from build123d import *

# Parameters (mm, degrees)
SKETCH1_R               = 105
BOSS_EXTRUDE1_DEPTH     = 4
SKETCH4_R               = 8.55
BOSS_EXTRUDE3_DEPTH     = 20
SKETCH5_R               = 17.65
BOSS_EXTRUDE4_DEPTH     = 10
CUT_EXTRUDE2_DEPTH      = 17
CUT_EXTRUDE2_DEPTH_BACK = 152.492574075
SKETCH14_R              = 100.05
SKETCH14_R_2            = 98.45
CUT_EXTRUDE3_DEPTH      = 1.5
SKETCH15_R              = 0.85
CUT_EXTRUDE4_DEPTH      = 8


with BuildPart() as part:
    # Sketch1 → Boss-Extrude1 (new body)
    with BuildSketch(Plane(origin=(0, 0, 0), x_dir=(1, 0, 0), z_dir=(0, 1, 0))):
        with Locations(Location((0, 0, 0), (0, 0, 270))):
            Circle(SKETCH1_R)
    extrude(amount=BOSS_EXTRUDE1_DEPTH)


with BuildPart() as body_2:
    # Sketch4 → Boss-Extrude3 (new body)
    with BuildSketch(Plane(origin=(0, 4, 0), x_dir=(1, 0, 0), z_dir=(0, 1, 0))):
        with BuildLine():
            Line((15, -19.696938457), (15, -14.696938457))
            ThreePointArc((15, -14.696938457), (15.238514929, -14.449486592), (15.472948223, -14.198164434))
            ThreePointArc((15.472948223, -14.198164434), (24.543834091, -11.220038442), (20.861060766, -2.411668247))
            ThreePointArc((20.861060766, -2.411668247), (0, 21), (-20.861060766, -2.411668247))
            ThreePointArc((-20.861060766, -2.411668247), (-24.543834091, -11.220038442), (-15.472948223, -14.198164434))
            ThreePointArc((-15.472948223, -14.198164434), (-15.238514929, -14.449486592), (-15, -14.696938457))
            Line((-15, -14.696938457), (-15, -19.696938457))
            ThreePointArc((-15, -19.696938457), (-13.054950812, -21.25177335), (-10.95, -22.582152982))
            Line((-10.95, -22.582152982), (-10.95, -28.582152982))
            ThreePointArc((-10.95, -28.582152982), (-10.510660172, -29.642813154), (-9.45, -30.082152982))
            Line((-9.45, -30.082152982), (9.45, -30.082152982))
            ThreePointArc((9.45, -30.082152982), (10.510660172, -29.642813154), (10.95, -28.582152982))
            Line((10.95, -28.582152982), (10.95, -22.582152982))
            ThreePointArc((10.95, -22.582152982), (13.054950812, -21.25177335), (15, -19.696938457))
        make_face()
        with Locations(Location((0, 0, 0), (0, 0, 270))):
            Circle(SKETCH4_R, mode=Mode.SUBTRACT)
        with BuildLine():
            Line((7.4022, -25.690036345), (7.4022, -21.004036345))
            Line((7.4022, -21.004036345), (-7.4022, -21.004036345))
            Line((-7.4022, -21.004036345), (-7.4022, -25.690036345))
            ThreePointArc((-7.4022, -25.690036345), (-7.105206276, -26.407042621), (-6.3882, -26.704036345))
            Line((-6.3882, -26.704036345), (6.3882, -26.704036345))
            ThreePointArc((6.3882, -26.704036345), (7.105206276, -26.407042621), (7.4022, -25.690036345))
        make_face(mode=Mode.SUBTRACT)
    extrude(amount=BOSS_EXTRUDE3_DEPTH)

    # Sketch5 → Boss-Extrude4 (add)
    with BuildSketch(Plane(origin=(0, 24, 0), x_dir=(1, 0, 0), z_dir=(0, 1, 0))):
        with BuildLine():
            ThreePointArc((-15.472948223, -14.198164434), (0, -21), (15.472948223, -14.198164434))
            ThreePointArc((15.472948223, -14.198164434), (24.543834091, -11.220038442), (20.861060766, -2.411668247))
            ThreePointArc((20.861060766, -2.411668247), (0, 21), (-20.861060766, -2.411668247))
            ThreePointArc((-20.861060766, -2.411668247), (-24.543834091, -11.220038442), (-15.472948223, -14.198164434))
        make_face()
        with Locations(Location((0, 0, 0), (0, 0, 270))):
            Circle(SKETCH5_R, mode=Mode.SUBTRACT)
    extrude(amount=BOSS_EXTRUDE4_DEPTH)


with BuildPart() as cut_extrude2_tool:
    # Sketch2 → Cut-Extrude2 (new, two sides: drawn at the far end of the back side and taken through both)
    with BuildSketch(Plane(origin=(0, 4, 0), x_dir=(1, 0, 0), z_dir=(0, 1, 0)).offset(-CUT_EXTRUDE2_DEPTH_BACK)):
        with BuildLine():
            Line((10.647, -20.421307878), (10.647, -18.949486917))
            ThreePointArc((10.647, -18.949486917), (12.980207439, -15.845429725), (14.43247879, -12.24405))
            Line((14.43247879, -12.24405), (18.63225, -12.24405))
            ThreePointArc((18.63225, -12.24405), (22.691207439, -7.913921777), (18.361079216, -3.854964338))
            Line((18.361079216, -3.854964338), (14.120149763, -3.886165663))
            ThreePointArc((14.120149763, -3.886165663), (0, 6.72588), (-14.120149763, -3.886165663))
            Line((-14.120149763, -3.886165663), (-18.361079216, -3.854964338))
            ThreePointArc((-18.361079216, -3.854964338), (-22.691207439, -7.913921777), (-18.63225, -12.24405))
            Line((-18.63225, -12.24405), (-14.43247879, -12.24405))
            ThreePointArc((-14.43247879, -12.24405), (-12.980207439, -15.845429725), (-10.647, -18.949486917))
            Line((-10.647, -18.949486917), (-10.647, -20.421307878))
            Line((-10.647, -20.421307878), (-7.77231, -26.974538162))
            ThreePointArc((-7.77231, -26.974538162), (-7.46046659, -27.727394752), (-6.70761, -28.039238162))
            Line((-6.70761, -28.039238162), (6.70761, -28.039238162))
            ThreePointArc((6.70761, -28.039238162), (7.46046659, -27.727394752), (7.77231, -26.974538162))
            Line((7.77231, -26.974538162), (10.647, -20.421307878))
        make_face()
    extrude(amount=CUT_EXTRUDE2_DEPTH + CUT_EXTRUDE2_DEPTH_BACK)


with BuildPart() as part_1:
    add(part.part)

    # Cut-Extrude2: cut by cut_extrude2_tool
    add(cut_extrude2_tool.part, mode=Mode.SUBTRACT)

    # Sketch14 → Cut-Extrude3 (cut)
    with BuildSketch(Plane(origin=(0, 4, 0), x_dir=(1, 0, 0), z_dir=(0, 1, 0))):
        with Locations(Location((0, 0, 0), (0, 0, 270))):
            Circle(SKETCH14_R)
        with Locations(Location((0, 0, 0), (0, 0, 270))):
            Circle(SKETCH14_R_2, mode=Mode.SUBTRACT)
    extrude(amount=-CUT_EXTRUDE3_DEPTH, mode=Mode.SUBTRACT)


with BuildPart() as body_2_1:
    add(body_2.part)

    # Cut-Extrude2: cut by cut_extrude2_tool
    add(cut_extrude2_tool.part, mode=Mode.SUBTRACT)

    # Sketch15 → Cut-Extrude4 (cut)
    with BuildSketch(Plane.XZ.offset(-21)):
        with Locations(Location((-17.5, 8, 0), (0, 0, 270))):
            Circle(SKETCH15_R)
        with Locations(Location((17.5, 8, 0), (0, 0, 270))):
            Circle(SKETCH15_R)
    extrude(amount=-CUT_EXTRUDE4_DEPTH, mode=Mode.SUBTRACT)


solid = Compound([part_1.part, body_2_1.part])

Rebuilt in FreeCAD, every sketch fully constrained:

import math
import FreeCAD as App
import Part
import Sketcher

V = App.Vector
Q = App.Units.Quantity

doc = App.newDocument("Part")
params = doc.addObject("Spreadsheet::Sheet", "Params")
for row, (alias, value) in enumerate([
    ("sketch1_diameter", "210 mm"),
    ("pad1_length", "4 mm"),
    ("sketch2_radius", "20.999999 mm"),
    ("sketch2_diameter", "17.1 mm"),
    ("sketch2_radius2", "6.5 mm"),
    ("sketch2_radius3", "22.5 mm"),
    ("sketch2_radius4", "1.5 mm"),
    ("pad2_length", "20 mm"),
    ("sketch3_radius", "21 mm"),
    ("sketch3_diameter", "35.3 mm"),
    ("sketch3_radius2", "6.5 mm"),
    ("pad3_length", "10 mm"),
    ("sketch4_radius", "14.7 mm"),
    ("pad4_length", "17 mm"),
    ("pad4_length2", "152.492574 mm"),
    ("sketch5_diameter", "200.1 mm"),
    ("sketch5_diameter2", "196.9 mm"),
    ("pocket1_length", "1.5 mm"),
    ("sketch6_diameter", "1.7 mm"),
    ("pocket2_length", "8 mm"),
], start=1):
    params.set(f"A{row}", alias)
    params.set(f"B{row}", "=" + value)
    params.setAlias(f"B{row}", alias)

body = doc.addObject("PartDesign::Body", "Body")

sketch1 = body.newObject("Sketcher::SketchObject", "Sketch")
sketch1.AttachmentSupport = (doc.getObject("XZ_Plane"), [""])
sketch1.MapMode = "FlatFace"
sketch1.addGeometry(Part.Circle(V(0, 0, 0), V(0, 0, 1), 105), False)
sketch1.addConstraint(Sketcher.Constraint("Coincident", 0, 3, -1, 1))
sketch1.addConstraint(Sketcher.Constraint("Diameter", 0, Q("210 mm")))
sketch1.setExpression("Constraints[1]", "Params.sketch1_diameter")
pad1 = body.newObject("PartDesign::Pad", "Pad")
pad1.Profile = sketch1
pad1.setExpression("Length", "Params.pad1_length")
pad1.Reversed = True
body2 = doc.addObject("PartDesign::Body", "Body001")

sketch2 = body2.newObject("Sketcher::SketchObject", "Sketch001")
sketch2.AttachmentSupport = (doc.getObject("XZ_Plane001"), [""])
sketch2.MapMode = "FlatFace"
sketch2.AttachmentOffset = App.Placement(V(0, 0, -4), App.Rotation())
sketch2.addGeometry(Part.LineSegment(V(15, 19.696938, 0), V(15, 14.696938, 0)), False)
sketch2.addGeometry(Part.ArcOfCircle(Part.Circle(V(0.000001, 0.000001, 0), V(0, 0, 1), 20.999999), math.radians(42.539868), math.radians(44.415309)), False)
sketch2.addGeometry(Part.ArcOfCircle(Part.Circle(V(18.63225, 8.5176, 0), V(0, 0, 1), 6.5), math.radians(-69.946712), math.radians(119.081054)), False)
sketch2.addGeometry(Part.ArcOfCircle(Part.Circle(V(0, 0, 0), V(0, 0, 1), 21), math.radians(173.405526), math.radians(366.594474)), False)
sketch2.addGeometry(Part.ArcOfCircle(Part.Circle(V(-18.63225, 8.5176, 0), V(0, 0, 1), 6.5), math.radians(60.918946), math.radians(249.946712)), False)
sketch2.addGeometry(Part.ArcOfCircle(Part.Circle(V(-0.000001, 0.000001, 0), V(0, 0, 1), 20.999999), math.radians(135.584691), math.radians(137.460132)), False)
sketch2.addGeometry(Part.LineSegment(V(-15, 14.696938, 0), V(-15, 19.696938, 0)), False)
sketch2.addGeometry(Part.ArcOfCircle(Part.Circle(V(0, 2.926429, 0), V(0, 0, 1), 22.5), math.radians(119.121726), math.radians(131.810315)), False)
sketch2.addGeometry(Part.LineSegment(V(-10.95, 22.582153, 0), V(-10.95, 28.582153, 0)), False)
sketch2.addGeometry(Part.ArcOfCircle(Part.Circle(V(-9.45, 28.582153, 0), V(0, 0, 1), 1.5), math.radians(90), math.radians(180)), False)
sketch2.addGeometry(Part.LineSegment(V(-9.45, 30.082153, 0), V(9.45, 30.082153, 0)), False)
sketch2.addGeometry(Part.ArcOfCircle(Part.Circle(V(9.45, 28.582153, 0), V(0, 0, 1), 1.5), math.radians(0), math.radians(90)), False)
sketch2.addGeometry(Part.LineSegment(V(10.95, 28.582153, 0), V(10.95, 22.582153, 0)), False)
sketch2.addGeometry(Part.ArcOfCircle(Part.Circle(V(0, 2.926429, 0), V(0, 0, 1), 22.5), math.radians(48.189685), math.radians(60.878274)), False)
sketch2.addGeometry(Part.LineSegment(V(7.4022, 21.004036, 0), V(7.4022, 25.690036, 0)), False)
sketch2.addGeometry(Part.ArcOfCircle(Part.Circle(V(6.3882, 25.690036, 0), V(0, 0, 1), 1.014), math.radians(0), math.radians(90)), False)
sketch2.addGeometry(Part.LineSegment(V(6.3882, 26.704036, 0), V(-6.3882, 26.704036, 0)), False)
sketch2.addGeometry(Part.ArcOfCircle(Part.Circle(V(-6.3882, 25.690036, 0), V(0, 0, 1), 1.014), math.radians(90), math.radians(180)), False)
sketch2.addGeometry(Part.LineSegment(V(-7.4022, 25.690036, 0), V(-7.4022, 21.004036, 0)), False)
sketch2.addGeometry(Part.LineSegment(V(-7.4022, 21.004036, 0), V(7.4022, 21.004036, 0)), False)
sketch2.addGeometry(Part.Circle(V(0, 0, 0), V(0, 0, 1), 8.55), False)
sketch2.addConstraint(Sketcher.Constraint("Coincident", 0, 2, 1, 2))
sketch2.addConstraint(Sketcher.Constraint("Coincident", 1, 1, 2, 2))
sketch2.addConstraint(Sketcher.Constraint("Coincident", 2, 1, 3, 2))
sketch2.addConstraint(Sketcher.Constraint("Coincident", 3, 1, 4, 2))
sketch2.addConstraint(Sketcher.Constraint("Coincident", 4, 1, 5, 2))
sketch2.addConstraint(Sketcher.Constraint("Coincident", 5, 1, 6, 1))
sketch2.addConstraint(Sketcher.Constraint("Coincident", 6, 2, 7, 2))
sketch2.addConstraint(Sketcher.Constraint("Coincident", 7, 1, 8, 1))
sketch2.addConstraint(Sketcher.Constraint("Tangent", 8, 2, 9, 2))
sketch2.addConstraint(Sketcher.Constraint("Tangent", 9, 1, 10, 1))
sketch2.addConstraint(Sketcher.Constraint("Tangent", 10, 2, 11, 2))
sketch2.addConstraint(Sketcher.Constraint("Tangent", 11, 1, 12, 1))
sketch2.addConstraint(Sketcher.Constraint("Coincident", 12, 2, 13, 2))
sketch2.addConstraint(Sketcher.Constraint("Coincident", 13, 1, 0, 1))
sketch2.addConstraint(Sketcher.Constraint("Tangent", 14, 2, 15, 1))
sketch2.addConstraint(Sketcher.Constraint("Tangent", 15, 2, 16, 1))
sketch2.addConstraint(Sketcher.Constraint("Tangent", 16, 2, 17, 1))
sketch2.addConstraint(Sketcher.Constraint("Tangent", 17, 2, 18, 1))
sketch2.addConstraint(Sketcher.Constraint("Coincident", 18, 2, 19, 1))
sketch2.addConstraint(Sketcher.Constraint("Coincident", 19, 2, 14, 1))
sketch2.addConstraint(Sketcher.Constraint("Vertical", 0))
sketch2.addConstraint(Sketcher.Constraint("Vertical", 6))
sketch2.addConstraint(Sketcher.Constraint("Vertical", 8))
sketch2.addConstraint(Sketcher.Constraint("Horizontal", 10))
sketch2.addConstraint(Sketcher.Constraint("Vertical", 12))
sketch2.addConstraint(Sketcher.Constraint("Vertical", 14))
sketch2.addConstraint(Sketcher.Constraint("Horizontal", 16))
sketch2.addConstraint(Sketcher.Constraint("Vertical", 18))
sketch2.addConstraint(Sketcher.Constraint("Horizontal", 19))
sketch2.addConstraint(Sketcher.Constraint("Coincident", 1, 3, -1, 1))
sketch2.addConstraint(Sketcher.Constraint("Coincident", 3, 3, -1, 1))
sketch2.addConstraint(Sketcher.Constraint("Coincident", 5, 3, -1, 1))
sketch2.addConstraint(Sketcher.Constraint("Coincident", 20, 3, -1, 1))
sketch2.addConstraint(Sketcher.Constraint("Coincident", 13, 3, 7, 3))
sketch2.addConstraint(Sketcher.Constraint("Equal", 1, 3))
sketch2.addConstraint(Sketcher.Constraint("Equal", 2, 4))
sketch2.addConstraint(Sketcher.Constraint("Equal", 3, 5))
sketch2.addConstraint(Sketcher.Constraint("Equal", 9, 11))
sketch2.addConstraint(Sketcher.Constraint("Equal", 7, 13))
sketch2.addConstraint(Sketcher.Constraint("Equal", 15, 17))
sketch2.addConstraint(Sketcher.Constraint("Symmetric", 2, 3, 4, 3, -2))
sketch2.addConstraint(Sketcher.Constraint("Symmetric", 7, 1, 12, 2, -2))
sketch2.addConstraint(Sketcher.Constraint("Horizontal", 0, 2, 5, 1))
sketch2.addConstraint(Sketcher.Constraint("Radius", 1, Q("20.999999 mm")))
sketch2.addConstraint(Sketcher.Constraint("Diameter", 20, Q("17.1 mm")))
sketch2.addConstraint(Sketcher.Constraint("Radius", 2, Q("6.5 mm")))
sketch2.addConstraint(Sketcher.Constraint("Radius", 7, Q("22.5 mm")))
sketch2.addConstraint(Sketcher.Constraint("Radius", 9, Q("1.5 mm")))
sketch2.addConstraint(Sketcher.Constraint("DistanceY", 0, 2, 0, 1, Q("5 mm")))
sketch2.addConstraint(Sketcher.Constraint("DistanceY", 8, 1, 8, 2, Q("6 mm")))
sketch2.addConstraint(Sketcher.Constraint("DistanceX", 10, 1, 10, 2, Q("18.9 mm")))
sketch2.addConstraint(Sketcher.Constraint("DistanceX", -1, 1, 0, 2, Q("15 mm")))
sketch2.addConstraint(Sketcher.Constraint("Radius", 15, Q("1.014 mm")))
sketch2.addConstraint(Sketcher.Constraint("DistanceY", 18, 2, 16, 2, Q("5.7 mm")))
sketch2.addConstraint(Sketcher.Constraint("DistanceX", 16, 2, 16, 1, Q("12.7764 mm")))
sketch2.addConstraint(Sketcher.Constraint("DistanceY", -1, 1, 2, 3, Q("8.5176 mm")))
sketch2.addConstraint(Sketcher.Constraint("DistanceX", -1, 1, 15, 3, Q("6.3882 mm")))
sketch2.addConstraint(Sketcher.Constraint("DistanceX", 4, 3, 2, 3, Q("37.2645 mm")))
sketch2.addConstraint(Sketcher.Constraint("DistanceY", 1, 1, 15, 3, Q("11.491872 mm")))
sketch2.setExpression("Constraints[43]", "Params.sketch2_radius")
sketch2.setExpression("Constraints[44]", "Params.sketch2_diameter")
sketch2.setExpression("Constraints[45]", "Params.sketch2_radius2")
sketch2.setExpression("Constraints[46]", "Params.sketch2_radius3")
sketch2.setExpression("Constraints[47]", "Params.sketch2_radius4")
pad2 = body2.newObject("PartDesign::Pad", "Pad001")
pad2.Profile = sketch2
pad2.setExpression("Length", "Params.pad2_length")
pad2.Reversed = True

sketch3 = body2.newObject("Sketcher::SketchObject", "Sketch002")
sketch3.AttachmentSupport = (doc.getObject("XZ_Plane001"), [""])
sketch3.MapMode = "FlatFace"
sketch3.AttachmentOffset = App.Placement(V(0, 0, -24), App.Rotation())
sketch3.addGeometry(Part.ArcOfCircle(Part.Circle(V(0, 0, 0), V(0, 0, 1), 21), math.radians(42.539868), math.radians(137.460132)), False)
sketch3.addGeometry(Part.ArcOfCircle(Part.Circle(V(18.63225, 8.5176, 0), V(0, 0, 1), 6.5), math.radians(-69.946712), math.radians(119.081054)), False)
sketch3.addGeometry(Part.ArcOfCircle(Part.Circle(V(0, 0, 0), V(0, 0, 1), 21), math.radians(173.405526), math.radians(366.594474)), False)
sketch3.addGeometry(Part.ArcOfCircle(Part.Circle(V(-18.63225, 8.5176, 0), V(0, 0, 1), 6.5), math.radians(60.918946), math.radians(249.946712)), False)
sketch3.addGeometry(Part.Circle(V(0, 0, 0), V(0, 0, 1), 17.65), False)
sketch3.addConstraint(Sketcher.Constraint("Coincident", 0, 1, 1, 2))
sketch3.addConstraint(Sketcher.Constraint("Coincident", 1, 1, 2, 2))
sketch3.addConstraint(Sketcher.Constraint("Coincident", 2, 1, 3, 2))
sketch3.addConstraint(Sketcher.Constraint("Coincident", 3, 1, 0, 2))
sketch3.addConstraint(Sketcher.Constraint("Coincident", 0, 3, -1, 1))
sketch3.addConstraint(Sketcher.Constraint("Coincident", 2, 3, -1, 1))
sketch3.addConstraint(Sketcher.Constraint("Coincident", 4, 3, -1, 1))
sketch3.addConstraint(Sketcher.Constraint("Equal", 0, 2))
sketch3.addConstraint(Sketcher.Constraint("Equal", 1, 3))
sketch3.addConstraint(Sketcher.Constraint("Symmetric", 1, 3, 3, 3, -2))
sketch3.addConstraint(Sketcher.Constraint("Radius", 0, Q("21 mm")))
sketch3.addConstraint(Sketcher.Constraint("Diameter", 4, Q("35.3 mm")))
sketch3.addConstraint(Sketcher.Constraint("Radius", 1, Q("6.5 mm")))
sketch3.addConstraint(Sketcher.Constraint("DistanceY", -1, 1, 1, 3, Q("8.5176 mm")))
sketch3.addConstraint(Sketcher.Constraint("DistanceX", 3, 3, 1, 3, Q("37.2645 mm")))
sketch3.setExpression("Constraints[10]", "Params.sketch3_radius")
sketch3.setExpression("Constraints[11]", "Params.sketch3_diameter")
sketch3.setExpression("Constraints[12]", "Params.sketch3_radius2")
pad3 = body2.newObject("PartDesign::Pad", "Pad002")
pad3.Profile = sketch3
pad3.setExpression("Length", "Params.pad3_length")
pad3.Reversed = True
body3 = doc.addObject("PartDesign::Body", "Body002")

sketch4 = body3.newObject("Sketcher::SketchObject", "Sketch003")
sketch4.AttachmentSupport = (doc.getObject("XZ_Plane002"), [""])
sketch4.MapMode = "FlatFace"
sketch4.AttachmentOffset = App.Placement(V(0, 0, -4), App.Rotation())
sketch4.addGeometry(Part.LineSegment(V(10.647, 20.421308, 0), V(10.647, 18.949487, 0)), False)
sketch4.addGeometry(Part.ArcOfCircle(Part.Circle(V(0, 8.5176, 0), V(0, 0, 1), 14.9058), math.radians(14.477512), math.radians(44.415309)), False)
sketch4.addGeometry(Part.LineSegment(V(14.432479, 12.24405, 0), V(18.63225, 12.24405, 0)), False)
sketch4.addGeometry(Part.ArcOfCircle(Part.Circle(V(18.496665, 8.049507, 0), V(0, 0, 1), 4.196734), math.radians(-91.851398), math.radians(88.148602)), False)
sketch4.addGeometry(Part.LineSegment(V(18.361079, 3.854964, 0), V(14.12015, 3.886166, 0)), False)
sketch4.addGeometry(Part.ArcOfCircle(Part.Circle(V(0, 7.97412, 0), V(0, 0, 1), 14.7), math.radians(-163.85363), math.radians(-16.14637)), False)
sketch4.addGeometry(Part.LineSegment(V(-14.12015, 3.886166, 0), V(-18.361079, 3.854964, 0)), False)
sketch4.addGeometry(Part.ArcOfCircle(Part.Circle(V(-18.496665, 8.049507, 0), V(0, 0, 1), 4.196734), math.radians(91.851398), math.radians(271.851398)), False)
sketch4.addGeometry(Part.LineSegment(V(-18.63225, 12.24405, 0), V(-14.432479, 12.24405, 0)), False)
sketch4.addGeometry(Part.ArcOfCircle(Part.Circle(V(0, 8.5176, 0), V(0, 0, 1), 14.9058), math.radians(135.584691), math.radians(165.522488)), False)
sketch4.addGeometry(Part.LineSegment(V(-10.647, 18.949487, 0), V(-10.647, 20.421308, 0)), False)
sketch4.addGeometry(Part.LineSegment(V(-10.647, 20.421308, 0), V(-7.77231, 26.974538, 0)), False)
sketch4.addGeometry(Part.ArcOfCircle(Part.Circle(V(-6.70761, 26.974538, 0), V(0, 0, 1), 1.0647), math.radians(90), math.radians(180)), False)
sketch4.addGeometry(Part.LineSegment(V(-6.70761, 28.039238, 0), V(6.70761, 28.039238, 0)), False)
sketch4.addGeometry(Part.ArcOfCircle(Part.Circle(V(6.70761, 26.974538, 0), V(0, 0, 1), 1.0647), math.radians(0), math.radians(90)), False)
sketch4.addGeometry(Part.LineSegment(V(7.77231, 26.974538, 0), V(10.647, 20.421308, 0)), False)
sketch4.addConstraint(Sketcher.Constraint("Coincident", 0, 2, 1, 2))
sketch4.addConstraint(Sketcher.Constraint("Coincident", 1, 1, 2, 1))
sketch4.addConstraint(Sketcher.Constraint("Coincident", 2, 2, 3, 2))
sketch4.addConstraint(Sketcher.Constraint("Coincident", 3, 1, 4, 1))
sketch4.addConstraint(Sketcher.Constraint("Coincident", 4, 2, 5, 2))
sketch4.addConstraint(Sketcher.Constraint("Coincident", 5, 1, 6, 1))
sketch4.addConstraint(Sketcher.Constraint("Coincident", 6, 2, 7, 2))
sketch4.addConstraint(Sketcher.Constraint("Coincident", 7, 1, 8, 1))
sketch4.addConstraint(Sketcher.Constraint("Coincident", 8, 2, 9, 2))
sketch4.addConstraint(Sketcher.Constraint("Coincident", 9, 1, 10, 1))
sketch4.addConstraint(Sketcher.Constraint("Coincident", 10, 2, 11, 1))
sketch4.addConstraint(Sketcher.Constraint("Coincident", 11, 2, 12, 2))
sketch4.addConstraint(Sketcher.Constraint("Tangent", 12, 1, 13, 1))
sketch4.addConstraint(Sketcher.Constraint("Tangent", 13, 2, 14, 2))
sketch4.addConstraint(Sketcher.Constraint("Coincident", 14, 1, 15, 1))
sketch4.addConstraint(Sketcher.Constraint("Coincident", 15, 2, 0, 1))
sketch4.addConstraint(Sketcher.Constraint("Vertical", 0))
sketch4.addConstraint(Sketcher.Constraint("Horizontal", 2))
sketch4.addConstraint(Sketcher.Constraint("Horizontal", 8))
sketch4.addConstraint(Sketcher.Constraint("Vertical", 10))
sketch4.addConstraint(Sketcher.Constraint("Horizontal", 13))
sketch4.addConstraint(Sketcher.Constraint("Coincident", 9, 3, 1, 3))
sketch4.addConstraint(Sketcher.Constraint("Equal", 3, 7))
sketch4.addConstraint(Sketcher.Constraint("Equal", 1, 9))
sketch4.addConstraint(Sketcher.Constraint("Equal", 12, 14))
sketch4.addConstraint(Sketcher.Constraint("Symmetric", 3, 3, 7, 3, -2))
sketch4.addConstraint(Sketcher.Constraint("Symmetric", 4, 2, 5, 1, -2))
sketch4.addConstraint(Sketcher.Constraint("Symmetric", 1, 1, 8, 2, -2))
sketch4.addConstraint(Sketcher.Constraint("Symmetric", 11, 2, 14, 1, -2))
sketch4.addConstraint(Sketcher.Constraint("Symmetric", 10, 2, 15, 2, -2))
sketch4.addConstraint(Sketcher.Constraint("Horizontal", 3, 1, 6, 2))
sketch4.addConstraint(Sketcher.Constraint("Horizontal", 14, 3, 11, 2))
sketch4.addConstraint(Sketcher.Constraint("Radius", 5, Q("14.7 mm")))
sketch4.addConstraint(Sketcher.Constraint("Radius", 1, Q("14.9058 mm")))
sketch4.addConstraint(Sketcher.Constraint("Radius", 12, Q("1.0647 mm")))
sketch4.addConstraint(Sketcher.Constraint("DistanceX", -1, 1, 0, 2, Q("10.647 mm")))
sketch4.addConstraint(Sketcher.Constraint("Radius", 3, Q("4.196734 mm")))
sketch4.addConstraint(Sketcher.Constraint("DistanceX", 2, 1, 2, 2, Q("4.199771 mm")))
sketch4.addConstraint(Sketcher.Constraint("DistanceX", 13, 1, 13, 2, Q("13.41522 mm")))
sketch4.addConstraint(Sketcher.Constraint("DistanceY", 0, 2, 0, 1, Q("1.471821 mm")))
sketch4.addConstraint(Sketcher.Constraint("DistanceY", -1, 1, 1, 3, Q("8.5176 mm")))
sketch4.addConstraint(Sketcher.Constraint("DistanceX", 1, 1, 3, 1, Q("3.9286 mm")))
sketch4.addConstraint(Sketcher.Constraint("DistanceY", 3, 1, 4, 2, Q("0.031201 mm")))
sketch4.addConstraint(Sketcher.Constraint("DistanceX", 4, 2, 2, 2, Q("4.5121 mm")))
sketch4.addConstraint(Sketcher.Constraint("DistanceY", 7, 3, 10, 2, Q("12.371801 mm")))
sketch4.addConstraint(Sketcher.Constraint("DistanceY", -1, 1, 5, 3, Q("7.97412 mm")))
sketch4.addConstraint(Sketcher.Constraint("DistanceY", -1, 1, 12, 3, Q("26.974538 mm")))
sketch4.setExpression("Constraints[32]", "Params.sketch4_radius")
pad4 = body3.newObject("PartDesign::Pad", "Pad003")
pad4.Profile = sketch4
pad4.Type = "TwoLengths"
pad4.setExpression("Length", "Params.pad4_length")
pad4.setExpression("Length2", "Params.pad4_length2")
pad4.Reversed = True
doc.recompute()

body4 = doc.addObject("PartDesign::Body", "Body003")
body4.BaseFeature = body3
boolean = body.newObject("PartDesign::Boolean", "Boolean")
boolean.Type = "Cut"
boolean.addObjects([body4])
doc.recompute()

sketch5 = body.newObject("Sketcher::SketchObject", "Sketch004")
sketch5.AttachmentSupport = (doc.getObject("XZ_Plane"), [""])
sketch5.MapMode = "FlatFace"
sketch5.AttachmentOffset = App.Placement(V(0, 0, -4), App.Rotation())
sketch5.addGeometry(Part.Circle(V(0, 0, 0), V(0, 0, 1), 100.05), False)
sketch5.addGeometry(Part.Circle(V(0, 0, 0), V(0, 0, 1), 98.45), False)
sketch5.addConstraint(Sketcher.Constraint("Coincident", 0, 3, -1, 1))
sketch5.addConstraint(Sketcher.Constraint("Coincident", 1, 3, -1, 1))
sketch5.addConstraint(Sketcher.Constraint("Diameter", 0, Q("200.1 mm")))
sketch5.addConstraint(Sketcher.Constraint("Diameter", 1, Q("196.9 mm")))
sketch5.setExpression("Constraints[2]", "Params.sketch5_diameter")
sketch5.setExpression("Constraints[3]", "Params.sketch5_diameter2")
pocket1 = body.newObject("PartDesign::Pocket", "Pocket")
pocket1.Profile = sketch5
pocket1.setExpression("Length", "Params.pocket1_length")
pocket1.Reversed = True
doc.recompute()

boolean2 = body2.newObject("PartDesign::Boolean", "Boolean001")
boolean2.Type = "Cut"
boolean2.addObjects([body3])

sketch6 = body2.newObject("Sketcher::SketchObject", "Sketch005")
sketch6.AttachmentSupport = (doc.getObject("XZ_Plane001"), [""])
sketch6.MapMode = "FlatFace"
sketch6.AttachmentOffset = App.Placement(V(0, 0, -21), App.Rotation())
sketch6.addGeometry(Part.Circle(V(-17.5, 8, 0), V(0, 0, 1), 0.85), False)
sketch6.addGeometry(Part.Circle(V(17.5, 8, 0), V(0, 0, 1), 0.85), False)
sketch6.addConstraint(Sketcher.Constraint("Equal", 0, 1))
sketch6.addConstraint(Sketcher.Constraint("Symmetric", 0, 3, 1, 3, -2))
sketch6.addConstraint(Sketcher.Constraint("Diameter", 0, Q("1.7 mm")))
sketch6.addConstraint(Sketcher.Constraint("DistanceY", -1, 1, 0, 3, Q("8 mm")))
sketch6.addConstraint(Sketcher.Constraint("DistanceX", 0, 3, 1, 3, Q("35 mm")))
sketch6.setExpression("Constraints[2]", "Params.sketch6_diameter")
pocket2 = body2.newObject("PartDesign::Pocket", "Pocket001")
pocket2.Profile = sketch6
pocket2.setExpression("Length", "Params.pocket2_length")

doc.recompute()
